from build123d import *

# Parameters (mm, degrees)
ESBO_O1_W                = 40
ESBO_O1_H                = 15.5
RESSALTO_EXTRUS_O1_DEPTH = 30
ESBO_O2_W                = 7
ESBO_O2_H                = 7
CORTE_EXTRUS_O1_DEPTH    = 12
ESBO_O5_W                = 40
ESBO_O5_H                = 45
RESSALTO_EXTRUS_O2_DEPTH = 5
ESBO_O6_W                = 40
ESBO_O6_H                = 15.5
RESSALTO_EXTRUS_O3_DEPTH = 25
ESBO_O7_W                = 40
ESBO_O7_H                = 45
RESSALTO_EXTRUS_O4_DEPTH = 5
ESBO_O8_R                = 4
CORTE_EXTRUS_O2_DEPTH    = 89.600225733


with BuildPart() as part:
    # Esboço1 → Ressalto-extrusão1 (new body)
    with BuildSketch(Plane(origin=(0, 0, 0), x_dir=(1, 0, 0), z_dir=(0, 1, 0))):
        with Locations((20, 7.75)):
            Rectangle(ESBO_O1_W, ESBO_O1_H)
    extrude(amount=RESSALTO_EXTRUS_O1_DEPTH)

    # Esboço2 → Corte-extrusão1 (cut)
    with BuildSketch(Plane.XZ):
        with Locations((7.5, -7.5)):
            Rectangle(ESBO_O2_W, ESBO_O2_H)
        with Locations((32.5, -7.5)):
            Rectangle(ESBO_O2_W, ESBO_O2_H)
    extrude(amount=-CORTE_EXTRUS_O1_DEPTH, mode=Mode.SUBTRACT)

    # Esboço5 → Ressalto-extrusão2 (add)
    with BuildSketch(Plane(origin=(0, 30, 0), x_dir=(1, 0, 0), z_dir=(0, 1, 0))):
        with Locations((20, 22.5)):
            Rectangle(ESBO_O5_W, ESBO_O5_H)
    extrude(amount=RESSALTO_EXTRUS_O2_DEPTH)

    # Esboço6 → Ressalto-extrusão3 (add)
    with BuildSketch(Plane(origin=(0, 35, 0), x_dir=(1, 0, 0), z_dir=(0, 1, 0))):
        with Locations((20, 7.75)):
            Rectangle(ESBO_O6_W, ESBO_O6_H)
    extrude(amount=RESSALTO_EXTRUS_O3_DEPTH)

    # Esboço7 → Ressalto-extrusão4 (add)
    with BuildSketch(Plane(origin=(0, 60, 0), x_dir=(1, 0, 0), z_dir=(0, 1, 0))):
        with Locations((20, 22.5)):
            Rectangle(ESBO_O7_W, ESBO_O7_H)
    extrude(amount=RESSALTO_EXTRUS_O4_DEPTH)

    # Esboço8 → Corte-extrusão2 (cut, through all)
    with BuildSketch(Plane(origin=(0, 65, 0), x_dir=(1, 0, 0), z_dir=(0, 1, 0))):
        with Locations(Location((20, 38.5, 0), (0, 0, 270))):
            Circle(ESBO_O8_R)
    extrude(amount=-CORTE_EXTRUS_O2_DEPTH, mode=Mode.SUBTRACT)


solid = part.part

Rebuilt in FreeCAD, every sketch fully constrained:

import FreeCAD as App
import Part
import Sketcher
from FreeCAD import Vector

doc = App.newDocument("Part")
body = doc.addObject("PartDesign::Body", "Body")

sketch1 = doc.addObject("Sketcher::SketchObject", "Sketch")
body.addObject(sketch1)
sketch1.AttachmentSupport = (doc.XZ_Plane, [""])
sketch1.MapMode = "FlatFace"
sketch1.addGeometry(Part.LineSegment(Vector(0, -15.5, 0), Vector(0, 0, 0)), False)
sketch1.addGeometry(Part.LineSegment(Vector(0, 0, 0), Vector(40, 0, 0)), False)
sketch1.addGeometry(Part.LineSegment(Vector(40, 0, 0), Vector(40, -15.5, 0)), False)
sketch1.addGeometry(Part.LineSegment(Vector(40, -15.5, 0), Vector(0, -15.5, 0)), False)
sketch1.addConstraint(Sketcher.Constraint("Coincident", 0, 2, 1, 1))
sketch1.addConstraint(Sketcher.Constraint("Coincident", 1, 2, 2, 1))
sketch1.addConstraint(Sketcher.Constraint("Coincident", 2, 2, 3, 1))
sketch1.addConstraint(Sketcher.Constraint("Coincident", 3, 2, 0, 1))
sketch1.addConstraint(Sketcher.Constraint("Vertical", 0))
sketch1.addConstraint(Sketcher.Constraint("Horizontal", 1))
sketch1.addConstraint(Sketcher.Constraint("Vertical", 2))
sketch1.addConstraint(Sketcher.Constraint("Horizontal", 3))
sketch1.addConstraint(Sketcher.Constraint("Coincident", 0, 2, -1, 1))
sketch1.addConstraint(Sketcher.Constraint("DistanceX", 1, 1, 1, 2, 40.0))
sketch1.addConstraint(Sketcher.Constraint("DistanceY", 0, 1, 0, 2, 15.5))
pad1 = doc.addObject("PartDesign::Pad", "Pad")
body.addObject(pad1)
pad1.Profile = sketch1
pad1.Length = 30
pad1.Reversed = True

sketch2 = doc.addObject("Sketcher::SketchObject", "Sketch001")
body.addObject(sketch2)
sketch2.AttachmentSupport = (doc.XZ_Plane, [""])
sketch2.MapMode = "FlatFace"
sketch2.addGeometry(Part.LineSegment(Vector(4, -4, 0), Vector(4, -11, 0)), False)
sketch2.addGeometry(Part.LineSegment(Vector(4, -11, 0), Vector(11, -11, 0)), False)
sketch2.addGeometry(Part.LineSegment(Vector(11, -11, 0), Vector(11, -4, 0)), False)
sketch2.addGeometry(Part.LineSegment(Vector(11, -4, 0), Vector(4, -4, 0)), False)
sketch2.addGeometry(Part.LineSegment(Vector(29, -4, 0), Vector(29, -11, 0)), False)
sketch2.addGeometry(Part.LineSegment(Vector(29, -11, 0), Vector(36, -11, 0)), False)
sketch2.addGeometry(Part.LineSegment(Vector(36, -11, 0), Vector(36, -4, 0)), False)
sketch2.addGeometry(Part.LineSegment(Vector(36, -4, 0), Vector(29, -4, 0)), False)
sketch2.addConstraint(Sketcher.Constraint("Coincident", 0, 2, 1, 1))
sketch2.addConstraint(Sketcher.Constraint("Coincident", 1, 2, 2, 1))
sketch2.addConstraint(Sketcher.Constraint("Coincident", 2, 2, 3, 1))
sketch2.addConstraint(Sketcher.Constraint("Coincident", 3, 2, 0, 1))
sketch2.addConstraint(Sketcher.Constraint("Coincident", 4, 2, 5, 1))
sketch2.addConstraint(Sketcher.Constraint("Coincident", 5, 2, 6, 1))
sketch2.addConstraint(Sketcher.Constraint("Coincident", 6, 2, 7, 1))
sketch2.addConstraint(Sketcher.Constraint("Coincident", 7, 2, 4, 1))
sketch2.addConstraint(Sketcher.Constraint("Vertical", 0))
sketch2.addConstraint(Sketcher.Constraint("Horizontal", 1))
sketch2.addConstraint(Sketcher.Constraint("Vertical", 2))
sketch2.addConstraint(Sketcher.Constraint("Horizontal", 3))
sketch2.addConstraint(Sketcher.Constraint("Vertical", 4))
sketch2.addConstraint(Sketcher.Constraint("Horizontal", 5))
sketch2.addConstraint(Sketcher.Constraint("Vertical", 6))
sketch2.addConstraint(Sketcher.Constraint("Horizontal", 7))
sketch2.addConstraint(Sketcher.Constraint("Horizontal", 1, 2, 4, 2))
sketch2.addConstraint(Sketcher.Constraint("Horizontal", 3, 2, 6, 2))
sketch2.addConstraint(Sketcher.Constraint("Equal", 3, 5))
sketch2.addConstraint(Sketcher.Constraint("Equal", 7, 0))
sketch2.addConstraint(Sketcher.Constraint("DistanceX", 1, 1, 1, 2, 7.0))
sketch2.addConstraint(Sketcher.Constraint("DistanceX", -1, 1, 0, 2, 4.0))
sketch2.addConstraint(Sketcher.Constraint("DistanceY", 0, 2, -1, 1, 11.0))
sketch2.addConstraint(Sketcher.Constraint("DistanceX", -1, 1, 4, 2, 29.0))
pocket1 = doc.addObject("PartDesign::Pocket", "Pocket")
body.addObject(pocket1)
pocket1.Profile = sketch2
pocket1.Length = 12

sketch3 = doc.addObject("Sketcher::SketchObject", "Sketch002")
body.addObject(sketch3)
sketch3.AttachmentSupport = (doc.XZ_Plane, [""])
sketch3.MapMode = "FlatFace"
sketch3.AttachmentOffset = App.Placement(Vector(0, 0, -30), App.Rotation())
sketch3.addGeometry(Part.LineSegment(Vector(0, -45, 0), Vector(0, 0, 0)), False)
sketch3.addGeometry(Part.LineSegment(Vector(0, 0, 0), Vector(40, 0, 0)), False)
sketch3.addGeometry(Part.LineSegment(Vector(40, 0, 0), Vector(40, -45, 0)), False)
sketch3.addGeometry(Part.LineSegment(Vector(40, -45, 0), Vector(0, -45, 0)), False)
sketch3.addConstraint(Sketcher.Constraint("Coincident", 0, 2, 1, 1))
sketch3.addConstraint(Sketcher.Constraint("Coincident", 1, 2, 2, 1))
sketch3.addConstraint(Sketcher.Constraint("Coincident", 2, 2, 3, 1))
sketch3.addConstraint(Sketcher.Constraint("Coincident", 3, 2, 0, 1))
sketch3.addConstraint(Sketcher.Constraint("Vertical", 0))
sketch3.addConstraint(Sketcher.Constraint("Horizontal", 1))
sketch3.addConstraint(Sketcher.Constraint("Vertical", 2))
sketch3.addConstraint(Sketcher.Constraint("Horizontal", 3))
sketch3.addConstraint(Sketcher.Constraint("Coincident", 0, 2, -1, 1))
sketch3.addConstraint(Sketcher.Constraint("DistanceX", 1, 1, 1, 2, 40.0))
sketch3.addConstraint(Sketcher.Constraint("DistanceY", 0, 1, 0, 2, 45.0))
pad2 = doc.addObject("PartDesign::Pad", "Pad001")
body.addObject(pad2)
pad2.Profile = sketch3
pad2.Length = 5
pad2.Reversed = True

sketch4 = doc.addObject("Sketcher::SketchObject", "Sketch003")
body.addObject(sketch4)
sketch4.AttachmentSupport = (doc.XZ_Plane, [""])
sketch4.MapMode = "FlatFace"
sketch4.AttachmentOffset = App.Placement(Vector(0, 0, -35), App.Rotation())
sketch4.addGeometry(Part.LineSegment(Vector(0, -15.5, 0), Vector(0, 0, 0)), False)
sketch4.addGeometry(Part.LineSegment(Vector(0, 0, 0), Vector(40, 0, 0)), False)
sketch4.addGeometry(Part.LineSegment(Vector(40, 0, 0), Vector(40, -15.5, 0)), False)
sketch4.addGeometry(Part.LineSegment(Vector(40, -15.5, 0), Vector(0, -15.5, 0)), False)
sketch4.addConstraint(Sketcher.Constraint("Coincident", 0, 2, 1, 1))
sketch4.addConstraint(Sketcher.Constraint("Coincident", 1, 2, 2, 1))
sketch4.addConstraint(Sketcher.Constraint("Coincident", 2, 2, 3, 1))
sketch4.addConstraint(Sketcher.Constraint("Coincident", 3, 2, 0, 1))
sketch4.addConstraint(Sketcher.Constraint("Vertical", 0))
sketch4.addConstraint(Sketcher.Constraint("Horizontal", 1))
sketch4.addConstraint(Sketcher.Constraint("Vertical", 2))
sketch4.addConstraint(Sketcher.Constraint("Horizontal", 3))
sketch4.addConstraint(Sketcher.Constraint("Coincident", 0, 2, -1, 1))
sketch4.addConstraint(Sketcher.Constraint("DistanceX", 1, 1, 1, 2, 40.0))
sketch4.addConstraint(Sketcher.Constraint("DistanceY", 0, 1, 0, 2, 15.5))
pad3 = doc.addObject("PartDesign::Pad", "Pad002")
body.addObject(pad3)
pad3.Profile = sketch4
pad3.Length = 25
pad3.Reversed = True

sketch5 = doc.addObject("Sketcher::SketchObject", "Sketch004")
body.addObject(sketch5)
sketch5.AttachmentSupport = (doc.XZ_Plane, [""])
sketch5.MapMode = "FlatFace"
sketch5.AttachmentOffset = App.Placement(Vector(0, 0, -60), App.Rotation())
sketch5.addGeometry(Part.LineSegment(Vector(0, -45, 0), Vector(0, 0, 0)), False)
sketch5.addGeometry(Part.LineSegment(Vector(0, 0, 0), Vector(40, 0, 0)), False)
sketch5.addGeometry(Part.LineSegment(Vector(40, 0, 0), Vector(40, -45, 0)), False)
sketch5.addGeometry(Part.LineSegment(Vector(40, -45, 0), Vector(0, -45, 0)), False)
sketch5.addConstraint(Sketcher.Constraint("Coincident", 0, 2, 1, 1))
sketch5.addConstraint(Sketcher.Constraint("Coincident", 1, 2, 2, 1))
sketch5.addConstraint(Sketcher.Constraint("Coincident", 2, 2, 3, 1))
sketch5.addConstraint(Sketcher.Constraint("Coincident", 3, 2, 0, 1))
sketch5.addConstraint(Sketcher.Constraint("Vertical", 0))
sketch5.addConstraint(Sketcher.Constraint("Horizontal", 1))
sketch5.addConstraint(Sketcher.Constraint("Vertical", 2))
sketch5.addConstraint(Sketcher.Constraint("Horizontal", 3))
sketch5.addConstraint(Sketcher.Constraint("Coincident", 0, 2, -1, 1))
sketch5.addConstraint(Sketcher.Constraint("DistanceX", 1, 1, 1, 2, 40.0))
sketch5.addConstraint(Sketcher.Constraint("DistanceY", 0, 1, 0, 2, 45.0))
pad4 = doc.addObject("PartDesign::Pad", "Pad003")
body.addObject(pad4)
pad4.Profile = sketch5
pad4.Length = 5
pad4.Reversed = True

sketch6 = doc.addObject("Sketcher::SketchObject", "Sketch005")
body.addObject(sketch6)
sketch6.AttachmentSupport = (doc.XZ_Plane, [""])
sketch6.MapMode = "FlatFace"
sketch6.AttachmentOffset = App.Placement(Vector(0, 0, -65), App.Rotation())
sketch6.addGeometry(Part.Circle(Vector(20, -38.5, 0), Vector(0, 0, 1), 4), False)
sketch6.addConstraint(Sketcher.Constraint("Diameter", 0, 8.0))
sketch6.addConstraint(Sketcher.Constraint("DistanceX", -1, 1, 0, 3, 20.0))
sketch6.addConstraint(Sketcher.Constraint("DistanceY", 0, 3, -1, 1, 38.5))
pocket2 = doc.addObject("PartDesign::Pocket", "Pocket001")
body.addObject(pocket2)
pocket2.Profile = sketch6
pocket2.Type = "ThroughAll"
pocket2.Reversed = True

doc.recompute()
